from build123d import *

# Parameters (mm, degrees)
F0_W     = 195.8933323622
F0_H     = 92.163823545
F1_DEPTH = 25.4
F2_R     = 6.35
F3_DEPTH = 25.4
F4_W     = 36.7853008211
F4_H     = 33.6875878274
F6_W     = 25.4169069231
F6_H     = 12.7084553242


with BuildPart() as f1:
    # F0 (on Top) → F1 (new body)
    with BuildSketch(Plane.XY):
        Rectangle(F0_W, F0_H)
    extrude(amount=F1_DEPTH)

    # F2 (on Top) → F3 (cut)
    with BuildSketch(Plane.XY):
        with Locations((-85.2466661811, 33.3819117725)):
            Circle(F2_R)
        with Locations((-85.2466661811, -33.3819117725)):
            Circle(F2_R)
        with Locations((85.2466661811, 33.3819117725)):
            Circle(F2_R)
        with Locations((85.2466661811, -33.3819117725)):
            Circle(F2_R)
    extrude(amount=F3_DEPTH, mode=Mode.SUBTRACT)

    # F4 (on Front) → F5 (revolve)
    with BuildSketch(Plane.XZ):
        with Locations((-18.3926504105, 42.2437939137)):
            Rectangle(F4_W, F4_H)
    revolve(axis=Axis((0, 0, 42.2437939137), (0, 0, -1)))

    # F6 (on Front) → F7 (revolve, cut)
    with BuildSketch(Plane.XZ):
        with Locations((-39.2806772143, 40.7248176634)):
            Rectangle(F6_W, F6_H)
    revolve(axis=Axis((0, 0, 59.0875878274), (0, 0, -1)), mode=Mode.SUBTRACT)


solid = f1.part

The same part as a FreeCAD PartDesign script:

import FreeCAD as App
import Part
import Sketcher
Q = App.Units.Quantity

doc = App.newDocument("Part")
params = doc.addObject("Spreadsheet::Sheet", "Params")
for row, (alias, value) in enumerate([
    ("pad1_length", "1 in"),
    ("sketch2_diameter", "0.5 in"),
    ("pocket1_length", "1 in"),
    ("revolution_angle", "360 deg"),
    ("groove_angle", "360 deg"),
], start=1):
    params.set(f"A{row}", alias)
    params.set(f"B{row}", "=" + value)
    params.setAlias(f"B{row}", alias)

body = doc.addObject("PartDesign::Body", "Body")

sketch1 = body.newObject("Sketcher::SketchObject", "Sketch")
sketch1.AttachmentSupport = (doc.getObject("XY_Plane"), [""])
sketch1.MapMode = "FlatFace"
sketch1.addGeometry(Part.LineSegment(App.Vector(-98, 46, 0), App.Vector(-98, -46, 0)), False)
sketch1.addGeometry(Part.LineSegment(App.Vector(-98, -46, 0), App.Vector(98, -46, 0)), False)
sketch1.addGeometry(Part.LineSegment(App.Vector(98, -46, 0), App.Vector(98, 46, 0)), False)
sketch1.addGeometry(Part.LineSegment(App.Vector(98, 46, 0), App.Vector(-98, 46, 0)), False)
sketch1.addConstraint(Sketcher.Constraint("Coincident", 0, 2, 1, 1))
sketch1.addConstraint(Sketcher.Constraint("Coincident", 1, 2, 2, 1))
sketch1.addConstraint(Sketcher.Constraint("Coincident", 2, 2, 3, 1))
sketch1.addConstraint(Sketcher.Constraint("Coincident", 3, 2, 0, 1))
sketch1.addConstraint(Sketcher.Constraint("Vertical", 0))
sketch1.addConstraint(Sketcher.Constraint("Horizontal", 1))
sketch1.addConstraint(Sketcher.Constraint("Vertical", 2))
sketch1.addConstraint(Sketcher.Constraint("Horizontal", 3))
sketch1.addConstraint(Sketcher.Constraint("Symmetric", 0, 2, 2, 2, -1, 1))
sketch1.addConstraint(Sketcher.Constraint("DistanceX", 1, 1, 1, 2, Q("195.893332 mm")))
sketch1.addConstraint(Sketcher.Constraint("DistanceY", 0, 2, 0, 1, Q("92.163824 mm")))
pad1 = body.newObject("PartDesign::Pad", "Pad")
pad1.Profile = sketch1
pad1.setExpression("Length", "Params.pad1_length")

sketch2 = body.newObject("Sketcher::SketchObject", "Sketch001")
sketch2.AttachmentSupport = (doc.getObject("XY_Plane"), [""])
sketch2.MapMode = "FlatFace"
sketch2.addGeometry(Part.Circle(App.Vector(-85, 33, 0), App.Vector(0, 0, 1), 6), False)
sketch2.addGeometry(Part.Circle(App.Vector(-85, -33, 0), App.Vector(0, 0, 1), 6), False)
sketch2.addGeometry(Part.Circle(App.Vector(85, 33, 0), App.Vector(0, 0, 1), 6), False)
sketch2.addGeometry(Part.Circle(App.Vector(85, -33, 0), App.Vector(0, 0, 1), 6), False)
sketch2.addConstraint(Sketcher.Constraint("Equal", 0, 1))
sketch2.addConstraint(Sketcher.Constraint("Equal", 1, 2))
sketch2.addConstraint(Sketcher.Constraint("Equal", 2, 3))
sketch2.addConstraint(Sketcher.Constraint("Symmetric", 1, 3, 2, 3, -1, 1))
sketch2.addConstraint(Sketcher.Constraint("Symmetric", 0, 3, 3, 3, -1, 1))
sketch2.addConstraint(Sketcher.Constraint("Symmetric", 0, 3, 2, 3, -2))
sketch2.addConstraint(Sketcher.Constraint("Diameter", 0, Q("0.5 in")))
sketch2.addConstraint(Sketcher.Constraint("DistanceY", -1, 1, 0, 3, Q("33.381912 mm")))
sketch2.addConstraint(Sketcher.Constraint("DistanceX", 0, 3, -1, 1, Q("85.246666 mm")))
sketch2.setExpression("Constraints[6]", "Params.sketch2_diameter")
pocket1 = body.newObject("PartDesign::Pocket", "Pocket")
pocket1.Profile = sketch2
pocket1.setExpression("Length", "Params.pocket1_length")
pocket1.Reversed = True

sketch3 = body.newObject("Sketcher::SketchObject", "Sketch002")
sketch3.AttachmentSupport = (doc.getObject("XZ_Plane"), [""])
sketch3.MapMode = "FlatFace"
sketch3.addGeometry(Part.LineSegment(App.Vector(-37, 59, 0), App.Vector(-37, 25, 0)), False)
sketch3.addGeometry(Part.LineSegment(App.Vector(-37, 25, 0), App.Vector(0, 25, 0)), False)
sketch3.addGeometry(Part.LineSegment(App.Vector(0, 25, 0), App.Vector(0, 59, 0)), False)
sketch3.addGeometry(Part.LineSegment(App.Vector(0, 59, 0), App.Vector(-37, 59, 0)), False)
sketch3.addConstraint(Sketcher.Constraint("Coincident", 0, 2, 1, 1))
sketch3.addConstraint(Sketcher.Constraint("Coincident", 1, 2, 2, 1))
sketch3.addConstraint(Sketcher.Constraint("Coincident", 2, 2, 3, 1))
sketch3.addConstraint(Sketcher.Constraint("Coincident", 3, 2, 0, 1))
sketch3.addConstraint(Sketcher.Constraint("Vertical", 0))
sketch3.addConstraint(Sketcher.Constraint("Horizontal", 1))
sketch3.addConstraint(Sketcher.Constraint("Vertical", 2))
sketch3.addConstraint(Sketcher.Constraint("Horizontal", 3))
sketch3.addConstraint(Sketcher.Constraint("PointOnObject", 1, 2, -2))
sketch3.addConstraint(Sketcher.Constraint("DistanceY", -1, 1, 0, 2, Q("1 in")))
sketch3.addConstraint(Sketcher.Constraint("DistanceX", 1, 1, 1, 2, Q("36.785301 mm")))
sketch3.addConstraint(Sketcher.Constraint("DistanceY", 0, 2, 0, 1, Q("33.687588 mm")))
revolution = body.newObject("PartDesign::Revolution", "Revolution")
revolution.Profile = sketch3
revolution.ReferenceAxis = (sketch3, ["V_Axis"])
revolution.setExpression("Angle", "Params.revolution_angle")

sketch4 = body.newObject("Sketcher::SketchObject", "Sketch003")
sketch4.AttachmentSupport = (doc.getObject("XZ_Plane"), [""])
sketch4.MapMode = "FlatFace"
sketch4.addGeometry(Part.LineSegment(App.Vector(-52, 47, 0), App.Vector(-52, 34, 0)), False)
sketch4.addGeometry(Part.LineSegment(App.Vector(-52, 34, 0), App.Vector(-27, 34, 0)), False)
sketch4.addGeometry(Part.LineSegment(App.Vector(-27, 34, 0), App.Vector(-27, 47, 0)), False)
sketch4.addGeometry(Part.LineSegment(App.Vector(-27, 47, 0), App.Vector(-52, 47, 0)), False)
sketch4.addConstraint(Sketcher.Constraint("Coincident", 0, 2, 1, 1))
sketch4.addConstraint(Sketcher.Constraint("Coincident", 1, 2, 2, 1))
sketch4.addConstraint(Sketcher.Constraint("Coincident", 2, 2, 3, 1))
sketch4.addConstraint(Sketcher.Constraint("Coincident", 3, 2, 0, 1))
sketch4.addConstraint(Sketcher.Constraint("Vertical", 0))
sketch4.addConstraint(Sketcher.Constraint("Horizontal", 1))
sketch4.addConstraint(Sketcher.Constraint("Vertical", 2))
sketch4.addConstraint(Sketcher.Constraint("Horizontal", 3))
sketch4.addConstraint(Sketcher.Constraint("DistanceX", 1, 1, 1, 2, Q("25.416907 mm")))
sketch4.addConstraint(Sketcher.Constraint("DistanceY", 0, 2, 0, 1, Q("12.708455 mm")))
sketch4.addConstraint(Sketcher.Constraint("DistanceX", 0, 2, -1, 1, Q("51.989131 mm")))
sketch4.addConstraint(Sketcher.Constraint("DistanceY", -1, 1, 0, 2, Q("34.37059 mm")))
groove = body.newObject("PartDesign::Groove", "Groove")
groove.Profile = sketch4
groove.ReferenceAxis = (sketch4, ["V_Axis"])
groove.setExpression("Angle", "Params.groove_angle")

doc.recompute()
